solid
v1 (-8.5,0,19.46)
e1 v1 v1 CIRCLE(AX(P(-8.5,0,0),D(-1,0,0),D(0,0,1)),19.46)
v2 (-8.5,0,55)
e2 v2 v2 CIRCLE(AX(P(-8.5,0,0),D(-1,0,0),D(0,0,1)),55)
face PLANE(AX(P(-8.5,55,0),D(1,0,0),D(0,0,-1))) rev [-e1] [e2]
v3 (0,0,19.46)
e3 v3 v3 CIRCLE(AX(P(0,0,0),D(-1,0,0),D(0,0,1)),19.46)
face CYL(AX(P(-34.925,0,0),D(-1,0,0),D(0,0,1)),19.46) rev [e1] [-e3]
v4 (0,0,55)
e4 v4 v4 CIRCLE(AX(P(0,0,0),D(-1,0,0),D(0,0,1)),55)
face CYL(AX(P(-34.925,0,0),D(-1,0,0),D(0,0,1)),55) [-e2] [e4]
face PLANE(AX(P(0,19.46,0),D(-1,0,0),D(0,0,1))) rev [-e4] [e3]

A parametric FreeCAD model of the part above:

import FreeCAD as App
import Part
import Sketcher
from FreeCAD import Vector
Q = App.Units.Quantity


def add_polygon(sketch, points):
    """Adds a closed chain of lines whose ends are joined by coincident constraints."""
    first, n = sketch.GeometryCount, len(points)
    for a, b in zip(points, points[1:] + points[:1]):
        sketch.addGeometry(Part.LineSegment(App.Vector(*a, 0), App.Vector(*b, 0)), False)
    for i in range(n):
        sketch.addConstraint(Sketcher.Constraint("Coincident", first + i, 2, first + (i + 1) % n, 1))

doc = App.newDocument("Part")
body = doc.addObject("PartDesign::Body", "Body")

# Sketch on XY plane
sketch1 = body.newObject("Sketcher::SketchObject", "Sketch")
sketch1.AttachmentSupport = (doc.getObject("XY_Plane"), [""])
sketch1.MapMode = "FlatFace"
add_polygon(sketch1, [(-8, 55), (-8, 19), (0, 19), (0, 55)])  # lines 0-3
sketch1.addConstraint(Sketcher.Constraint("Vertical", 0))
sketch1.addConstraint(Sketcher.Constraint("Horizontal", 1))
sketch1.addConstraint(Sketcher.Constraint("Vertical", 2))
sketch1.addConstraint(Sketcher.Constraint("Horizontal", 3))
sketch1.addConstraint(Sketcher.Constraint("PointOnObject", 1, 2, -2))
sketch1.addConstraint(Sketcher.Constraint("DistanceX", 1, 1, 1, 2, Q("8.5 mm")))
sketch1.addConstraint(Sketcher.Constraint("DistanceY", -1, 1, 2, 2, Q("55 mm")))
sketch1.addConstraint(Sketcher.Constraint("DistanceY", 0, 2, 0, 1, Q("35.54 mm")))
revolution = body.newObject("PartDesign::Revolution", "Revolution")
revolution.Profile = sketch1
revolution.ReferenceAxis = (sketch1, ["H_Axis"])
revolution.Angle = 360

doc.recompute()
